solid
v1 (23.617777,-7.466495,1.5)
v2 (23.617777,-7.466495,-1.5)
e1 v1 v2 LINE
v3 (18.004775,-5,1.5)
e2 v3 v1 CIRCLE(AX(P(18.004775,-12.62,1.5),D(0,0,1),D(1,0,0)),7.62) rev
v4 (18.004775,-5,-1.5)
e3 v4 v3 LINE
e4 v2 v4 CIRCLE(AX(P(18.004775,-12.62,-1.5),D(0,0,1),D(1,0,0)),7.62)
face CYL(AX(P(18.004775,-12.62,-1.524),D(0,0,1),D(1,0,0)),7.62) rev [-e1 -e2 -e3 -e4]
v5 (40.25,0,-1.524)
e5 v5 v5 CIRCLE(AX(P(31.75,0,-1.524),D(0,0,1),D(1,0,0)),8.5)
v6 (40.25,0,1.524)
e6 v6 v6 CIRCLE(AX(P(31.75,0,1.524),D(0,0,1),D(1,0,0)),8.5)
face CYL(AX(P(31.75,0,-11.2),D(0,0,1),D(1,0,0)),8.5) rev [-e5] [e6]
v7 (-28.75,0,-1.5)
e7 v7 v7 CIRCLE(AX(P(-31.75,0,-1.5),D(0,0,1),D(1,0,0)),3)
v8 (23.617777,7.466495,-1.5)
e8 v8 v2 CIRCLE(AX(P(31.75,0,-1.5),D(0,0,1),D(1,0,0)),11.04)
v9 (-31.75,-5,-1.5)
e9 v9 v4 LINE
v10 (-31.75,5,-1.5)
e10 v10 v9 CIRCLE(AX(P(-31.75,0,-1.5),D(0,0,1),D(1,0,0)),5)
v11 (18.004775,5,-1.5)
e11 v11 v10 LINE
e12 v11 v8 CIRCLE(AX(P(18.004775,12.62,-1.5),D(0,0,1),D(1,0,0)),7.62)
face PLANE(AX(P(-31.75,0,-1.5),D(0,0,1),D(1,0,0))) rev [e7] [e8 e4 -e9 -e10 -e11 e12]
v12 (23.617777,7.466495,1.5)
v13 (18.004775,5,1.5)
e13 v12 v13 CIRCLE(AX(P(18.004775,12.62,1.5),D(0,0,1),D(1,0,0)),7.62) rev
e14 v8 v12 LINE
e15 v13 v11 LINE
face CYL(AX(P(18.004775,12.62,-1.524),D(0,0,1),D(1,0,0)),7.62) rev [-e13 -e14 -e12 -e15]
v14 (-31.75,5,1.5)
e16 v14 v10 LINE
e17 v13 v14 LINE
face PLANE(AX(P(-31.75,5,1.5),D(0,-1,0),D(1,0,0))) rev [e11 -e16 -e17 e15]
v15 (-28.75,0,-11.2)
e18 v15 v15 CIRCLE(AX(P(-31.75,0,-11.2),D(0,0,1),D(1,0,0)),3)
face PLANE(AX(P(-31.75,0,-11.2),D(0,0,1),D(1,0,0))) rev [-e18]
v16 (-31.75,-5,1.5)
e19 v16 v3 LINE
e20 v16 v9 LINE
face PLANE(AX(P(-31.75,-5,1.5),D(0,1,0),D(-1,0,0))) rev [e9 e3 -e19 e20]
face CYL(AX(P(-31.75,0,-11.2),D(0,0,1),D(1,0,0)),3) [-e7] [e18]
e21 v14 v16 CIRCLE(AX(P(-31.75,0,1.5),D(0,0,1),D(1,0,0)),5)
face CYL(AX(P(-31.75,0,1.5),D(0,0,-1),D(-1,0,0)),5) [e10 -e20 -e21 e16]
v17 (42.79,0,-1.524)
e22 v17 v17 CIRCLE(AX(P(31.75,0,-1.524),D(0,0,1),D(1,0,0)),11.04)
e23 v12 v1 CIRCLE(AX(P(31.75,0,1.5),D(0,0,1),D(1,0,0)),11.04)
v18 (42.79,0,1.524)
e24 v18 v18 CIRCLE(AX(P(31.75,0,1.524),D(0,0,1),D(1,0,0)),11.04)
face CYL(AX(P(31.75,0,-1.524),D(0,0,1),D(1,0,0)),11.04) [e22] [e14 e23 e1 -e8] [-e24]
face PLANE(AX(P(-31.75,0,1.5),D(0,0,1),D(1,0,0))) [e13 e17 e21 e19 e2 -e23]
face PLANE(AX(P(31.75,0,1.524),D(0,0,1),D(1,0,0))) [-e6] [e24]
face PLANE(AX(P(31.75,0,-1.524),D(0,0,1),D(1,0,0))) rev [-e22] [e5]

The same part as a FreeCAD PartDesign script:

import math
import FreeCAD as App
import Part
import Sketcher

V = App.Vector
Q = App.Units.Quantity


def edges_at(feature, points):
    """Names of the edges that pass closest to the given points."""
    edges = feature.Shape.Edges
    near = lambda p: min(range(len(edges)), key=lambda i: edges[i].distToShape(Part.Vertex(*p))[0])
    return sorted({f"Edge{near(p) + 1}" for p in points})

doc = App.newDocument("Part")
body = doc.addObject("PartDesign::Body", "Body")

# Sketch on XY plane
sketch1 = body.newObject("Sketcher::SketchObject", "Sketch")
sketch1.AttachmentSupport = (doc.getObject("XY_Plane"), [""])
sketch1.MapMode = "FlatFace"
sketch1.addGeometry([
    Part.LineSegment(V(31.75, 5, 0), V(-31.75, 5, 0)),  # 0
    Part.ArcOfCircle(Part.Circle(V(-31.75, 0, 0), V(0, 0, 1), 5), math.radians(90), math.radians(270)),  # 1
    Part.LineSegment(V(-31.75, -5, 0), V(31.75, -5, 0)),  # 2
    Part.ArcOfCircle(Part.Circle(V(31.75, 0, 0), V(0, 0, 1), 5), math.radians(-90), math.radians(90)),  # 3
    Part.Circle(V(31.75, 0, 0), V(0, 0, 1), 3),  # 4
    Part.Circle(V(-31.75, 0, 0), V(0, 0, 1), 3),  # 5
], False)
sketch1.addConstraint([
    Sketcher.Constraint("Tangent", 0, 2, 1, 1),
    Sketcher.Constraint("Tangent", 1, 2, 2, 1),
    Sketcher.Constraint("Tangent", 2, 2, 3, 1),
    Sketcher.Constraint("Tangent", 3, 2, 0, 1),
    Sketcher.Constraint("Horizontal", 0),
    Sketcher.Constraint("Horizontal", 2),
    Sketcher.Constraint("Coincident", 4, 3, 3, 3),
    Sketcher.Constraint("Coincident", 5, 3, 1, 3),
    Sketcher.Constraint("Equal", 4, 5),
    Sketcher.Constraint("Symmetric", 1, 3, 3, 3, -1, 1),
    Sketcher.Constraint("Diameter", 4, Q("6 mm")),
    Sketcher.Constraint("Radius", 1, Q("5 mm")),
    Sketcher.Constraint("DistanceX", 0, 2, 0, 1, Q("63.5 mm")),
])
pad1 = body.newObject("PartDesign::Pad", "Pad")
pad1.Profile = sketch1
pad1.Length = 3
pad1.Midplane = True

# Sketch on XY plane
sketch2 = body.newObject("Sketcher::SketchObject", "Sketch001")
sketch2.AttachmentSupport = (doc.getObject("XY_Plane"), [""])
sketch2.MapMode = "FlatFace"
sketch2.AttachmentOffset = App.Placement(V(0, 0, 1.5), App.Rotation())
sketch2.addGeometry(Part.Circle(V(-31.75, 0, 0), V(0, 0, 1), 3), False)
sketch2.addConstraint([
    Sketcher.Constraint("PointOnObject", 0, 3, -1),
    Sketcher.Constraint("Diameter", 0, Q("6 mm")),
    Sketcher.Constraint("DistanceX", 0, 3, -1, 1, Q("31.75 mm")),
])
pad2 = body.newObject("PartDesign::Pad", "Pad001")
pad2.Profile = sketch2
pad2.Length = 12.7
pad2.Reversed = True

# Sketch on XY plane
sketch3 = body.newObject("Sketcher::SketchObject", "Sketch002")
sketch3.AttachmentSupport = (doc.getObject("XY_Plane"), [""])
sketch3.MapMode = "FlatFace"
sketch3.addGeometry(Part.Circle(V(31.75, 0, 0), V(0, 0, 1), 11.04), False)
sketch3.addConstraint([
    Sketcher.Constraint("PointOnObject", 0, 3, -1),
    Sketcher.Constraint("Diameter", 0, Q("22.08 mm")),
    Sketcher.Constraint("DistanceX", -1, 1, 0, 3, Q("31.75 mm")),
])
pad3 = body.newObject("PartDesign::Pad", "Pad002")
pad3.Profile = sketch3
pad3.Length = 3.048
pad3.Midplane = True
doc.recompute()

fillet = body.newObject("PartDesign::Fillet", "Fillet")
fillet.Base = (pad3, edges_at(pad3, [(21.907, 5, 0), (21.907, -5, 0)]))
fillet.Radius = 7.62

# Sketch on XY plane
sketch4 = body.newObject("Sketcher::SketchObject", "Sketch003")
sketch4.AttachmentSupport = (doc.getObject("XY_Plane"), [""])
sketch4.MapMode = "FlatFace"
sketch4.AttachmentOffset = App.Placement(V(0, 0, 1.524), App.Rotation())
sketch4.addGeometry(Part.Circle(V(31.75, 0, 0), V(0, 0, 1), 8.5), False)
sketch4.addConstraint([
    Sketcher.Constraint("PointOnObject", 0, 3, -1),
    Sketcher.Constraint("Diameter", 0, Q("17 mm")),
    Sketcher.Constraint("DistanceX", -1, 1, 0, 3, Q("31.75 mm")),
])
pocket1 = body.newObject("PartDesign::Pocket", "Pocket")
pocket1.Profile = sketch4
pocket1.Type = "ThroughAll"

doc.recompute()
